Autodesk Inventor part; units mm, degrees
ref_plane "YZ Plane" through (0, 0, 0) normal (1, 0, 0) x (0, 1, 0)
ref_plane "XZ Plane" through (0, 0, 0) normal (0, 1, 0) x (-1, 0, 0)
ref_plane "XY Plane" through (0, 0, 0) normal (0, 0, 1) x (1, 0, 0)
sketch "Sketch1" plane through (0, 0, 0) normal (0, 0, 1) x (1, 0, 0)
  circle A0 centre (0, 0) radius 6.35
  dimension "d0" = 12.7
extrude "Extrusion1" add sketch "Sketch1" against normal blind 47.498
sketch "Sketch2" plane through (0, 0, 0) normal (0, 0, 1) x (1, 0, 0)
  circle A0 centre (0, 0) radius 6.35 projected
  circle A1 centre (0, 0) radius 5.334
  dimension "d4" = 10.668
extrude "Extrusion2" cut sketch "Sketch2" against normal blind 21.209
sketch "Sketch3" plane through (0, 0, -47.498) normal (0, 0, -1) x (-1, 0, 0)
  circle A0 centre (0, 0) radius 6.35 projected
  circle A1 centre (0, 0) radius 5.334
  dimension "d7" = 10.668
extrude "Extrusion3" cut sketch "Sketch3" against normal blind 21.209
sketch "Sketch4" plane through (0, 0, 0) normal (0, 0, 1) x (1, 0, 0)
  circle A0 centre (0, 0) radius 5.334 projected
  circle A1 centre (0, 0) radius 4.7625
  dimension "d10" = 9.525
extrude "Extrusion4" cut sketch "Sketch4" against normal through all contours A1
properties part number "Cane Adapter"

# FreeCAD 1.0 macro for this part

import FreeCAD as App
import Part
import Sketcher
from FreeCAD import Vector
Q = App.Units.Quantity

doc = App.newDocument("Part")
body = doc.addObject("PartDesign::Body", "Body")

# Sketch on XY plane
sketch1 = body.newObject("Sketcher::SketchObject", "Sketch")
sketch1.AttachmentSupport = (doc.getObject("XY_Plane"), [""])
sketch1.MapMode = "FlatFace"
sketch1.addGeometry(Part.Circle(Vector(0, 0, 0), Vector(0, 0, 1), 6), False)
sketch1.addConstraint([
    Sketcher.Constraint("Coincident", 0, 3, -1, 1),
    Sketcher.Constraint("Diameter", 0, Q("0.5 in")),
])
pad1 = body.newObject("PartDesign::Pad", "Pad")
pad1.Profile = sketch1
pad1.Length = Q("1.87 in")
pad1.Reversed = True

# Sketch on XY plane
sketch2 = body.newObject("Sketcher::SketchObject", "Sketch001")
sketch2.AttachmentSupport = (doc.getObject("XY_Plane"), [""])
sketch2.MapMode = "FlatFace"
sketch2.addGeometry([
    Part.Circle(Vector(0, 0, 0), Vector(0, 0, 1), 6),
    Part.Circle(Vector(0, 0, 0), Vector(0, 0, 1), 5),
], False)
sketch2.addConstraint([
    Sketcher.Constraint("Coincident", 0, 3, -1, 1),
    Sketcher.Constraint("Coincident", 1, 3, -1, 1),
    Sketcher.Constraint("Diameter", 1, Q("0.42 in")),
    Sketcher.Constraint("Diameter", 0, Q("0.5 in")),
])
pocket1 = body.newObject("PartDesign::Pocket", "Pocket")
pocket1.Profile = sketch2
pocket1.Length = Q("0.835 in")

# Sketch on XY plane
sketch3 = body.newObject("Sketcher::SketchObject", "Sketch002")
sketch3.AttachmentSupport = (doc.getObject("XY_Plane"), [""])
sketch3.MapMode = "FlatFace"
sketch3.AttachmentOffset = App.Placement(Vector(0, 0, -1.87 * 25.4), App.Rotation())
sketch3.addGeometry([
    Part.Circle(Vector(0, 0, 0), Vector(0, 0, 1), 6),
    Part.Circle(Vector(0, 0, 0), Vector(0, 0, 1), 5),
], False)
sketch3.addConstraint([
    Sketcher.Constraint("Coincident", 0, 3, -1, 1),
    Sketcher.Constraint("Coincident", 1, 3, -1, 1),
    Sketcher.Constraint("Diameter", 1, Q("0.42 in")),
    Sketcher.Constraint("Diameter", 0, Q("0.5 in")),
])
pocket2 = body.newObject("PartDesign::Pocket", "Pocket001")
pocket2.Profile = sketch3
pocket2.Length = Q("0.835 in")
pocket2.Reversed = True

# Sketch on XY plane
sketch4 = body.newObject("Sketcher::SketchObject", "Sketch003")
sketch4.AttachmentSupport = (doc.getObject("XY_Plane"), [""])
sketch4.MapMode = "FlatFace"
sketch4.addGeometry(Part.Circle(Vector(0, 0, 0), Vector(0, 0, 1), 4.8), False)
sketch4.addConstraint([
    Sketcher.Constraint("Coincident", 0, 3, -1, 1),
    Sketcher.Constraint("Diameter", 0, Q("0.375 in")),
])
pocket3 = body.newObject("PartDesign::Pocket", "Pocket002")
pocket3.Profile = sketch4
pocket3.Type = "ThroughAll"

doc.recompute()
